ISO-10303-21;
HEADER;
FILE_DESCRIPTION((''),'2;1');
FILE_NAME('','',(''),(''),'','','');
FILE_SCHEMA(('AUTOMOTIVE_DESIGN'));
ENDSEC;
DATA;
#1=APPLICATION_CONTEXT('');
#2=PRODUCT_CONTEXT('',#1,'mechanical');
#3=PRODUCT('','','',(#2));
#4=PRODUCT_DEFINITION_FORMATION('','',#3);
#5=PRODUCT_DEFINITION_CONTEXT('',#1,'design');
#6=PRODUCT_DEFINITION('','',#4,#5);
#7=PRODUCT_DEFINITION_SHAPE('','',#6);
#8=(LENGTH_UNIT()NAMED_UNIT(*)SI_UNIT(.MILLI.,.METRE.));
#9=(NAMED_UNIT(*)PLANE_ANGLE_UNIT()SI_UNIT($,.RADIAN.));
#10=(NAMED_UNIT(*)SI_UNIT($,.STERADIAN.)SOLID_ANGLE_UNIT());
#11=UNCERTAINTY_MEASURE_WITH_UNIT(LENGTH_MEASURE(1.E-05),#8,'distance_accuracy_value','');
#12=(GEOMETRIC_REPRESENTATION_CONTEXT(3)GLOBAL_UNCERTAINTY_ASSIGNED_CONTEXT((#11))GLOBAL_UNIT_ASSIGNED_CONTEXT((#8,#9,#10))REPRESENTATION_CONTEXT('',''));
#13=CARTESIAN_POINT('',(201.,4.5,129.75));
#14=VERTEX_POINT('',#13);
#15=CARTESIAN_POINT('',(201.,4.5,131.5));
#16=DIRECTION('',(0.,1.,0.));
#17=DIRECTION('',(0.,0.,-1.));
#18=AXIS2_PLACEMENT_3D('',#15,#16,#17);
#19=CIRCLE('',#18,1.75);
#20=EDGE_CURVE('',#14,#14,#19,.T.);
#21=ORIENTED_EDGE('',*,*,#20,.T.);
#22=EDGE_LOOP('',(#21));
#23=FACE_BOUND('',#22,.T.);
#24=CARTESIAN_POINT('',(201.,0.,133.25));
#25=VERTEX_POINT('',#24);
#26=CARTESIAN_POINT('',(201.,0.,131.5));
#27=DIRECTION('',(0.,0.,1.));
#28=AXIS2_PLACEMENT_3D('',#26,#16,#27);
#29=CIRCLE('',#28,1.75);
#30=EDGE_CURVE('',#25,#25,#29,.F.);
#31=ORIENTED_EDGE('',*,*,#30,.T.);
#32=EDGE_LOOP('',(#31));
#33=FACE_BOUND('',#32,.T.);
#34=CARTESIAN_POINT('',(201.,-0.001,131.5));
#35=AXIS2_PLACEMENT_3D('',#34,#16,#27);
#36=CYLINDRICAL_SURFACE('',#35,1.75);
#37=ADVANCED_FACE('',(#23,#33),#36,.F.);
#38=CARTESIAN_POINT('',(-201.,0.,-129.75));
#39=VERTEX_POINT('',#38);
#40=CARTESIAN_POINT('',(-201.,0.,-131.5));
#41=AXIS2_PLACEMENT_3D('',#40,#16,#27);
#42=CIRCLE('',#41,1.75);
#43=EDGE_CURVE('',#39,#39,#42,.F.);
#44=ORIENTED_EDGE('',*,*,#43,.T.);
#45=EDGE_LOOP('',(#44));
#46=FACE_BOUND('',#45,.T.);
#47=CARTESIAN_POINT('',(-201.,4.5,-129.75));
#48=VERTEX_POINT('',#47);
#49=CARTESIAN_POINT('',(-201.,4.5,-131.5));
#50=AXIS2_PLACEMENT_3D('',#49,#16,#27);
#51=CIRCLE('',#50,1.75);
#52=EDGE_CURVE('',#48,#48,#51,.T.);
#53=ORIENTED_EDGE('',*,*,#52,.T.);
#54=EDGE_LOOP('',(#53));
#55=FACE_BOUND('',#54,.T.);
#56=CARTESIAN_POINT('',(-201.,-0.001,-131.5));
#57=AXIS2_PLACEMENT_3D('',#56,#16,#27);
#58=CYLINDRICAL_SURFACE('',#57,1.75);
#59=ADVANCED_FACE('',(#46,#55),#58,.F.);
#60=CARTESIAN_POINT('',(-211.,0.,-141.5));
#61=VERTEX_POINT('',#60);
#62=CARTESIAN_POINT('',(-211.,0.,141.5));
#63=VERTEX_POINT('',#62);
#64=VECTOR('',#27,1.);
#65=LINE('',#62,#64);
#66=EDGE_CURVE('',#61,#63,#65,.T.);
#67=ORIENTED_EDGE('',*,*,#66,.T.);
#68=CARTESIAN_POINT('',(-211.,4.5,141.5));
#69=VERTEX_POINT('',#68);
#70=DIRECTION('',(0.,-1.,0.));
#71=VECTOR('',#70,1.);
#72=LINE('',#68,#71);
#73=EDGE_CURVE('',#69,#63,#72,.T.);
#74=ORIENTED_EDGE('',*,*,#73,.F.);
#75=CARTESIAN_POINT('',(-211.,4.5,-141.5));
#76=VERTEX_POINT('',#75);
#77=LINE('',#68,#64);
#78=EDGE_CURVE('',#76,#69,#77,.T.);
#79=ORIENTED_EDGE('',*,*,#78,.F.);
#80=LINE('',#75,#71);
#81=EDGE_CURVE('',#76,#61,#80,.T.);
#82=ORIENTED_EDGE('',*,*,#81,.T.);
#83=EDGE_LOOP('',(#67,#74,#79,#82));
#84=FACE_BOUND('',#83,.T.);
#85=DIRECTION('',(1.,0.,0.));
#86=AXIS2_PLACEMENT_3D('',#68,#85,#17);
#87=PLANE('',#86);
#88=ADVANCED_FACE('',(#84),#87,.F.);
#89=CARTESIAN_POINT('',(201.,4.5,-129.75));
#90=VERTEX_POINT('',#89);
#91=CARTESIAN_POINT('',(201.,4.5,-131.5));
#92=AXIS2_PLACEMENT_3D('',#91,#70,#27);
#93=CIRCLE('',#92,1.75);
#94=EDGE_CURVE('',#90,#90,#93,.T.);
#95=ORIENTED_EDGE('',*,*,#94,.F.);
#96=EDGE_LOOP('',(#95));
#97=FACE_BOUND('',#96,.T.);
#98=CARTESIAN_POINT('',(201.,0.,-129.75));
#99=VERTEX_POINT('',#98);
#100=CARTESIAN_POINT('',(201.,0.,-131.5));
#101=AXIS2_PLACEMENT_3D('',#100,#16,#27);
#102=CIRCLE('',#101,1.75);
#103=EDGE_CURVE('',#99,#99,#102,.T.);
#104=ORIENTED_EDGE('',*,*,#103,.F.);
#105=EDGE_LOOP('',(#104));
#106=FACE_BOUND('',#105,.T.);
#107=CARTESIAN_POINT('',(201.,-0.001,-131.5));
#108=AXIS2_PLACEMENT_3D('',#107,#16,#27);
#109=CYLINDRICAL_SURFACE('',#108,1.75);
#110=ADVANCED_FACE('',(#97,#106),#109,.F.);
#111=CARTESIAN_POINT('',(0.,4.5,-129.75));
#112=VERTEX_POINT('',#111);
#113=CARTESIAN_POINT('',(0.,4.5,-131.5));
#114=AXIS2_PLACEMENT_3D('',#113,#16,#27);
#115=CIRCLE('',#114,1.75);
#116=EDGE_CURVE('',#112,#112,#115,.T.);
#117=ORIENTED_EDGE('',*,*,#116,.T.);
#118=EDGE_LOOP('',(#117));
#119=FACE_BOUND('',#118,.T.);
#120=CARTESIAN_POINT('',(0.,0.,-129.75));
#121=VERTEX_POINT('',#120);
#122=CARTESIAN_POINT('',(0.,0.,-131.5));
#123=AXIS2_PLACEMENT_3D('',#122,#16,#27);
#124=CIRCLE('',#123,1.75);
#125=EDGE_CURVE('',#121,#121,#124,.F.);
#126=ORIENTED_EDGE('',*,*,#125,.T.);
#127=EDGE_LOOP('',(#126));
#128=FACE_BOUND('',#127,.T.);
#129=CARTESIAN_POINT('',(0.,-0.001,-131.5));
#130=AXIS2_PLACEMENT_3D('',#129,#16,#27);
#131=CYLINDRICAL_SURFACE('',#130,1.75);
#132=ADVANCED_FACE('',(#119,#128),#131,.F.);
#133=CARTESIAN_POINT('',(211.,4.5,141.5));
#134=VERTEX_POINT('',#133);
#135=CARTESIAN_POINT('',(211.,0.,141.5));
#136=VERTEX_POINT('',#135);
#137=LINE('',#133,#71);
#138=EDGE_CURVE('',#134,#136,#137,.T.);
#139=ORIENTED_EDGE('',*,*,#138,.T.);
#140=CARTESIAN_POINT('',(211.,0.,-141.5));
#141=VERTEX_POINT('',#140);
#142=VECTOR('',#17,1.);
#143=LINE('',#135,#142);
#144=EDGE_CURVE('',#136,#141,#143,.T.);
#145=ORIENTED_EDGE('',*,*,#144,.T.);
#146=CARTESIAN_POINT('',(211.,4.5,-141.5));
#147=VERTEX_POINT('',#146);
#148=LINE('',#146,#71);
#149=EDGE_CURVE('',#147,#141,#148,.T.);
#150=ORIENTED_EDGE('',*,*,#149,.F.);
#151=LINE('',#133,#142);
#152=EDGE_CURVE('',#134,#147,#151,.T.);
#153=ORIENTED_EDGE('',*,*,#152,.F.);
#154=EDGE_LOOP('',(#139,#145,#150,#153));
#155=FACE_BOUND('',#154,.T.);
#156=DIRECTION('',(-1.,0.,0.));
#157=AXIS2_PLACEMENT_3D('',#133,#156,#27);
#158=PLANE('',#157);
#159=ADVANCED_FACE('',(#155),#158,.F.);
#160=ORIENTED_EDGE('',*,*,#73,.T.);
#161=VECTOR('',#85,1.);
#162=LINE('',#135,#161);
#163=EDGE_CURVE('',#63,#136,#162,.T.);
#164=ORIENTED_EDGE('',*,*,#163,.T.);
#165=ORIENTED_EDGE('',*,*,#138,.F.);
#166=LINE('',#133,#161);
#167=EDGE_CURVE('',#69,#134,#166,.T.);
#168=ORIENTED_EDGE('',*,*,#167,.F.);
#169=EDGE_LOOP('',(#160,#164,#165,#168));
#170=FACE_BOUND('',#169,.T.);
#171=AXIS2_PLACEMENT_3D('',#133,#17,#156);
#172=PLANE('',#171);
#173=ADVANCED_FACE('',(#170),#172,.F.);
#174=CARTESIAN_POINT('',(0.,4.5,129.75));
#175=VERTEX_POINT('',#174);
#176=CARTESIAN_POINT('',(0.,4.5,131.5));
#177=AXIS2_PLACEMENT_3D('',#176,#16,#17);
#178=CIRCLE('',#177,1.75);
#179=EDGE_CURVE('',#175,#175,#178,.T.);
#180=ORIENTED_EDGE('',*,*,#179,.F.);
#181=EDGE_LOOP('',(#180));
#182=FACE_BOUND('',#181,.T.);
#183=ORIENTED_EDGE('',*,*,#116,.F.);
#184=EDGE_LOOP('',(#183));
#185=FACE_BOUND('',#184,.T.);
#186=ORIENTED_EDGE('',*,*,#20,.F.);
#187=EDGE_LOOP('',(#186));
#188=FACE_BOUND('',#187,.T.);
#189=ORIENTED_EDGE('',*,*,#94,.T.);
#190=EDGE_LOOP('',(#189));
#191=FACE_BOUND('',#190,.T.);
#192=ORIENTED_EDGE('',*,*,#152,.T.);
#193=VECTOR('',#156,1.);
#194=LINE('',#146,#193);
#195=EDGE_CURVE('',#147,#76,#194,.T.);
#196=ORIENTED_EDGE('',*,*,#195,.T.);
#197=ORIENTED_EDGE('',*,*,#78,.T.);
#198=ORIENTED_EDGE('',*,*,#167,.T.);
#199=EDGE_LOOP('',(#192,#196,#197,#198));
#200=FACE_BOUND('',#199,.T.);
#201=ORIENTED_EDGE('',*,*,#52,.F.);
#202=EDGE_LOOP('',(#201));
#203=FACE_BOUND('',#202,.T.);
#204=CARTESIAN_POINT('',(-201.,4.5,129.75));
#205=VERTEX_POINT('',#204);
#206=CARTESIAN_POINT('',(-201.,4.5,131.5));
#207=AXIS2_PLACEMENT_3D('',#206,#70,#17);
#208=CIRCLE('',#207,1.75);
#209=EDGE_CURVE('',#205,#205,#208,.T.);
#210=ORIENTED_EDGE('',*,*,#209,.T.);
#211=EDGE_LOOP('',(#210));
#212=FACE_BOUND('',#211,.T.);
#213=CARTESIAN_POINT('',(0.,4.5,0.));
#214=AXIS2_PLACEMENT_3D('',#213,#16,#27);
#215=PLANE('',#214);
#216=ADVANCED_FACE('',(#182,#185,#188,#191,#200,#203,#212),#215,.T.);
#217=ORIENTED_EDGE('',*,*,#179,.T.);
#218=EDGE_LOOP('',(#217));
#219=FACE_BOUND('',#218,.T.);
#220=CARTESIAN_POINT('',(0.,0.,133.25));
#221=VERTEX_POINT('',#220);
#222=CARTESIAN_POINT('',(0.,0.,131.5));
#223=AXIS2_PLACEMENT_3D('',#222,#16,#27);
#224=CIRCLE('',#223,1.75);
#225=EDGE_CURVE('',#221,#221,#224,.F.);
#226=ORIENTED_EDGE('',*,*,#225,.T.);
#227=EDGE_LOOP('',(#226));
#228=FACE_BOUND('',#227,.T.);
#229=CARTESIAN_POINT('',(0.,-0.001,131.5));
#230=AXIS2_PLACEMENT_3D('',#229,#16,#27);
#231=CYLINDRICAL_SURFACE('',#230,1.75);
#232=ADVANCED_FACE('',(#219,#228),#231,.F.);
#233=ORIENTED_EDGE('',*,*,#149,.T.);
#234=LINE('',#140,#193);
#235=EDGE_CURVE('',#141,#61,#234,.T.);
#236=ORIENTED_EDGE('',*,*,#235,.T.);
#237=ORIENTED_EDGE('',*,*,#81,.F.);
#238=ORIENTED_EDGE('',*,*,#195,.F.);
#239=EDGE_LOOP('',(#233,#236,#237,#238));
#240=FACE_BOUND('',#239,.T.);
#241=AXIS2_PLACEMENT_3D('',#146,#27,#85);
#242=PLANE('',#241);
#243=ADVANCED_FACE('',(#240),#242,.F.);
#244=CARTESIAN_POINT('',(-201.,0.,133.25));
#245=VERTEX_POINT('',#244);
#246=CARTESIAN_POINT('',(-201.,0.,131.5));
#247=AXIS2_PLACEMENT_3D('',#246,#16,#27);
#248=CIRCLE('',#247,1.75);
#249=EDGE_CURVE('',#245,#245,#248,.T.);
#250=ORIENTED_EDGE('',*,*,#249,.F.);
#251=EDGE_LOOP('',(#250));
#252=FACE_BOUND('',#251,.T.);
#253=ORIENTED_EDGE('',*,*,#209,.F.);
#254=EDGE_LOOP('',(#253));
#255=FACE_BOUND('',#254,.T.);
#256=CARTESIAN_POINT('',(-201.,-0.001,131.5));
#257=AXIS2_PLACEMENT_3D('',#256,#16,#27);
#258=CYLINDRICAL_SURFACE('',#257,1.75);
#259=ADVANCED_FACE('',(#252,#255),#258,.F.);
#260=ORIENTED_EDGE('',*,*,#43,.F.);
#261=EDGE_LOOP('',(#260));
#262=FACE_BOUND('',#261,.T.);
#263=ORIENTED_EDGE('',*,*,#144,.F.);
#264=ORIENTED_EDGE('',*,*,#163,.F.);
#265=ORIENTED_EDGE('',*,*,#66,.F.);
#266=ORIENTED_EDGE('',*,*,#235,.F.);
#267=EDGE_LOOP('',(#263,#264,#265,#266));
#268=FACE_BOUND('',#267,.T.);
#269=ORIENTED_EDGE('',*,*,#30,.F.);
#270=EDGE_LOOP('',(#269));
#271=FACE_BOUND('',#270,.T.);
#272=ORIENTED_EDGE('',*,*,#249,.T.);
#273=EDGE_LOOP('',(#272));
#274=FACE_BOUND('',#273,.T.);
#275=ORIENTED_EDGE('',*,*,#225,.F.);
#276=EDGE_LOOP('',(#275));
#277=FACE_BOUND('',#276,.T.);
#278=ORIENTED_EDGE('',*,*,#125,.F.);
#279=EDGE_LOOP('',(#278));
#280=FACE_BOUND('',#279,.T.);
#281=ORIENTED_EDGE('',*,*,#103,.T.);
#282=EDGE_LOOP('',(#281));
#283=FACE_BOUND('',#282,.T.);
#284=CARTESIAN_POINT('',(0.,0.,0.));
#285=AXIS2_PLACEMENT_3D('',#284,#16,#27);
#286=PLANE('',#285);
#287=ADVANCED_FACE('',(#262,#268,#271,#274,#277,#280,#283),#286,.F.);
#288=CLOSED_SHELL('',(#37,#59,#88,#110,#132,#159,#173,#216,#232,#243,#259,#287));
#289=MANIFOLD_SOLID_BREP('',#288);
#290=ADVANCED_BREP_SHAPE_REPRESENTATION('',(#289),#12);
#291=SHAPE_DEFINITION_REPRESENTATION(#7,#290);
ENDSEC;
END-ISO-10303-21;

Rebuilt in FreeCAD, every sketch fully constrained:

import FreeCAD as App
import Part
import Sketcher
Q = App.Units.Quantity


def add_polygon(sketch, points):
    """Adds a closed chain of lines whose ends are joined by coincident constraints."""
    first, n = sketch.GeometryCount, len(points)
    for a, b in zip(points, points[1:] + points[:1]):
        sketch.addGeometry(Part.LineSegment(App.Vector(*a, 0), App.Vector(*b, 0)), False)
    for i in range(n):
        sketch.addConstraint(Sketcher.Constraint("Coincident", first + i, 2, first + (i + 1) % n, 1))

doc = App.newDocument("Part")
body = doc.addObject("PartDesign::Body", "Body")

sketch1 = body.newObject("Sketcher::SketchObject", "Sketch")
sketch1.AttachmentSupport = (doc.getObject("XZ_Plane"), [""])
sketch1.MapMode = "FlatFace"
add_polygon(sketch1, [(-211, -142), (-211, 142), (211, 142), (211, -142)])
sketch1.addConstraint([
    Sketcher.Constraint("Vertical", 0),
    Sketcher.Constraint("Horizontal", 1),
    Sketcher.Constraint("Vertical", 2),
    Sketcher.Constraint("Horizontal", 3),
    Sketcher.Constraint("Symmetric", 0, 2, 2, 2, -1, 1),
    Sketcher.Constraint("DistanceX", 1, 1, 1, 2, Q("422 mm")),
    Sketcher.Constraint("DistanceY", 0, 1, 0, 2, Q("283 mm")),
])
pad1 = body.newObject("PartDesign::Pad", "Pad")
pad1.Profile = sketch1
pad1.Length = 4.5
pad1.Reversed = True

sketch2 = body.newObject("Sketcher::SketchObject", "Sketch001")
sketch2.AttachmentSupport = (doc.getObject("XZ_Plane"), [""])
sketch2.MapMode = "FlatFace"
sketch2.AttachmentOffset = App.Placement(App.Vector(0, 0, -4.5), App.Rotation())
sketch2.addGeometry([
    Part.Circle(App.Vector(-201, -131.5, 0), App.Vector(0, 0, 1), 1.8),
    Part.Circle(App.Vector(0, -131.5, 0), App.Vector(0, 0, 1), 1.8),
], False)
sketch2.addConstraint([
    Sketcher.Constraint("Equal", 0, 1),
    Sketcher.Constraint("PointOnObject", 1, 3, -2),
    Sketcher.Constraint("Horizontal", 0, 3, 1, 3),
    Sketcher.Constraint("Diameter", 0, Q("3.5 mm")),
    Sketcher.Constraint("DistanceX", 0, 3, -1, 1, Q("201 mm")),
    Sketcher.Constraint("DistanceY", 0, 3, -1, 1, Q("131.5 mm")),
])
pocket1 = body.newObject("PartDesign::Pocket", "Pocket")
pocket1.Profile = sketch2
pocket1.Length = 4.5
pocket1.Reversed = True
doc.recompute()

mirrored = body.newObject("PartDesign::Mirrored", "Mirrored")
mirrored.Originals = [pocket1]
mirrored.MirrorPlane = (doc.getObject("YZ_Plane"), [""])
body.Tip = mirrored
doc.recompute()

mirrored2 = body.newObject("PartDesign::Mirrored", "Mirrored001")
mirrored2.Originals = [pocket1]
mirrored2.MirrorPlane = (doc.getObject("XY_Plane"), [""])
body.Tip = mirrored2

sketch3 = body.newObject("Sketcher::SketchObject", "Sketch002")
sketch3.AttachmentSupport = (doc.getObject("XZ_Plane"), [""])
sketch3.MapMode = "FlatFace"
sketch3.AttachmentOffset = App.Placement(App.Vector(0, 0, -4.5), App.Rotation())
sketch3.addGeometry([
    Part.Circle(App.Vector(201, 131.5, 0), App.Vector(0, 0, 1), 1.8),
    Part.Circle(App.Vector(0, 131.5, 0), App.Vector(0, 0, 1), 1.8),
], False)
sketch3.addConstraint([
    Sketcher.Constraint("Equal", 0, 1),
    Sketcher.Constraint("PointOnObject", 1, 3, -2),
    Sketcher.Constraint("Horizontal", 0, 3, 1, 3),
    Sketcher.Constraint("Diameter", 0, Q("3.5 mm")),
    Sketcher.Constraint("DistanceX", -1, 1, 0, 3, Q("201 mm")),
    Sketcher.Constraint("DistanceY", -1, 1, 0, 3, Q("131.5 mm")),
])
pocket2 = body.newObject("PartDesign::Pocket", "Pocket001")
pocket2.Profile = sketch3
pocket2.Length = 4.5
pocket2.Reversed = True

doc.recompute()
